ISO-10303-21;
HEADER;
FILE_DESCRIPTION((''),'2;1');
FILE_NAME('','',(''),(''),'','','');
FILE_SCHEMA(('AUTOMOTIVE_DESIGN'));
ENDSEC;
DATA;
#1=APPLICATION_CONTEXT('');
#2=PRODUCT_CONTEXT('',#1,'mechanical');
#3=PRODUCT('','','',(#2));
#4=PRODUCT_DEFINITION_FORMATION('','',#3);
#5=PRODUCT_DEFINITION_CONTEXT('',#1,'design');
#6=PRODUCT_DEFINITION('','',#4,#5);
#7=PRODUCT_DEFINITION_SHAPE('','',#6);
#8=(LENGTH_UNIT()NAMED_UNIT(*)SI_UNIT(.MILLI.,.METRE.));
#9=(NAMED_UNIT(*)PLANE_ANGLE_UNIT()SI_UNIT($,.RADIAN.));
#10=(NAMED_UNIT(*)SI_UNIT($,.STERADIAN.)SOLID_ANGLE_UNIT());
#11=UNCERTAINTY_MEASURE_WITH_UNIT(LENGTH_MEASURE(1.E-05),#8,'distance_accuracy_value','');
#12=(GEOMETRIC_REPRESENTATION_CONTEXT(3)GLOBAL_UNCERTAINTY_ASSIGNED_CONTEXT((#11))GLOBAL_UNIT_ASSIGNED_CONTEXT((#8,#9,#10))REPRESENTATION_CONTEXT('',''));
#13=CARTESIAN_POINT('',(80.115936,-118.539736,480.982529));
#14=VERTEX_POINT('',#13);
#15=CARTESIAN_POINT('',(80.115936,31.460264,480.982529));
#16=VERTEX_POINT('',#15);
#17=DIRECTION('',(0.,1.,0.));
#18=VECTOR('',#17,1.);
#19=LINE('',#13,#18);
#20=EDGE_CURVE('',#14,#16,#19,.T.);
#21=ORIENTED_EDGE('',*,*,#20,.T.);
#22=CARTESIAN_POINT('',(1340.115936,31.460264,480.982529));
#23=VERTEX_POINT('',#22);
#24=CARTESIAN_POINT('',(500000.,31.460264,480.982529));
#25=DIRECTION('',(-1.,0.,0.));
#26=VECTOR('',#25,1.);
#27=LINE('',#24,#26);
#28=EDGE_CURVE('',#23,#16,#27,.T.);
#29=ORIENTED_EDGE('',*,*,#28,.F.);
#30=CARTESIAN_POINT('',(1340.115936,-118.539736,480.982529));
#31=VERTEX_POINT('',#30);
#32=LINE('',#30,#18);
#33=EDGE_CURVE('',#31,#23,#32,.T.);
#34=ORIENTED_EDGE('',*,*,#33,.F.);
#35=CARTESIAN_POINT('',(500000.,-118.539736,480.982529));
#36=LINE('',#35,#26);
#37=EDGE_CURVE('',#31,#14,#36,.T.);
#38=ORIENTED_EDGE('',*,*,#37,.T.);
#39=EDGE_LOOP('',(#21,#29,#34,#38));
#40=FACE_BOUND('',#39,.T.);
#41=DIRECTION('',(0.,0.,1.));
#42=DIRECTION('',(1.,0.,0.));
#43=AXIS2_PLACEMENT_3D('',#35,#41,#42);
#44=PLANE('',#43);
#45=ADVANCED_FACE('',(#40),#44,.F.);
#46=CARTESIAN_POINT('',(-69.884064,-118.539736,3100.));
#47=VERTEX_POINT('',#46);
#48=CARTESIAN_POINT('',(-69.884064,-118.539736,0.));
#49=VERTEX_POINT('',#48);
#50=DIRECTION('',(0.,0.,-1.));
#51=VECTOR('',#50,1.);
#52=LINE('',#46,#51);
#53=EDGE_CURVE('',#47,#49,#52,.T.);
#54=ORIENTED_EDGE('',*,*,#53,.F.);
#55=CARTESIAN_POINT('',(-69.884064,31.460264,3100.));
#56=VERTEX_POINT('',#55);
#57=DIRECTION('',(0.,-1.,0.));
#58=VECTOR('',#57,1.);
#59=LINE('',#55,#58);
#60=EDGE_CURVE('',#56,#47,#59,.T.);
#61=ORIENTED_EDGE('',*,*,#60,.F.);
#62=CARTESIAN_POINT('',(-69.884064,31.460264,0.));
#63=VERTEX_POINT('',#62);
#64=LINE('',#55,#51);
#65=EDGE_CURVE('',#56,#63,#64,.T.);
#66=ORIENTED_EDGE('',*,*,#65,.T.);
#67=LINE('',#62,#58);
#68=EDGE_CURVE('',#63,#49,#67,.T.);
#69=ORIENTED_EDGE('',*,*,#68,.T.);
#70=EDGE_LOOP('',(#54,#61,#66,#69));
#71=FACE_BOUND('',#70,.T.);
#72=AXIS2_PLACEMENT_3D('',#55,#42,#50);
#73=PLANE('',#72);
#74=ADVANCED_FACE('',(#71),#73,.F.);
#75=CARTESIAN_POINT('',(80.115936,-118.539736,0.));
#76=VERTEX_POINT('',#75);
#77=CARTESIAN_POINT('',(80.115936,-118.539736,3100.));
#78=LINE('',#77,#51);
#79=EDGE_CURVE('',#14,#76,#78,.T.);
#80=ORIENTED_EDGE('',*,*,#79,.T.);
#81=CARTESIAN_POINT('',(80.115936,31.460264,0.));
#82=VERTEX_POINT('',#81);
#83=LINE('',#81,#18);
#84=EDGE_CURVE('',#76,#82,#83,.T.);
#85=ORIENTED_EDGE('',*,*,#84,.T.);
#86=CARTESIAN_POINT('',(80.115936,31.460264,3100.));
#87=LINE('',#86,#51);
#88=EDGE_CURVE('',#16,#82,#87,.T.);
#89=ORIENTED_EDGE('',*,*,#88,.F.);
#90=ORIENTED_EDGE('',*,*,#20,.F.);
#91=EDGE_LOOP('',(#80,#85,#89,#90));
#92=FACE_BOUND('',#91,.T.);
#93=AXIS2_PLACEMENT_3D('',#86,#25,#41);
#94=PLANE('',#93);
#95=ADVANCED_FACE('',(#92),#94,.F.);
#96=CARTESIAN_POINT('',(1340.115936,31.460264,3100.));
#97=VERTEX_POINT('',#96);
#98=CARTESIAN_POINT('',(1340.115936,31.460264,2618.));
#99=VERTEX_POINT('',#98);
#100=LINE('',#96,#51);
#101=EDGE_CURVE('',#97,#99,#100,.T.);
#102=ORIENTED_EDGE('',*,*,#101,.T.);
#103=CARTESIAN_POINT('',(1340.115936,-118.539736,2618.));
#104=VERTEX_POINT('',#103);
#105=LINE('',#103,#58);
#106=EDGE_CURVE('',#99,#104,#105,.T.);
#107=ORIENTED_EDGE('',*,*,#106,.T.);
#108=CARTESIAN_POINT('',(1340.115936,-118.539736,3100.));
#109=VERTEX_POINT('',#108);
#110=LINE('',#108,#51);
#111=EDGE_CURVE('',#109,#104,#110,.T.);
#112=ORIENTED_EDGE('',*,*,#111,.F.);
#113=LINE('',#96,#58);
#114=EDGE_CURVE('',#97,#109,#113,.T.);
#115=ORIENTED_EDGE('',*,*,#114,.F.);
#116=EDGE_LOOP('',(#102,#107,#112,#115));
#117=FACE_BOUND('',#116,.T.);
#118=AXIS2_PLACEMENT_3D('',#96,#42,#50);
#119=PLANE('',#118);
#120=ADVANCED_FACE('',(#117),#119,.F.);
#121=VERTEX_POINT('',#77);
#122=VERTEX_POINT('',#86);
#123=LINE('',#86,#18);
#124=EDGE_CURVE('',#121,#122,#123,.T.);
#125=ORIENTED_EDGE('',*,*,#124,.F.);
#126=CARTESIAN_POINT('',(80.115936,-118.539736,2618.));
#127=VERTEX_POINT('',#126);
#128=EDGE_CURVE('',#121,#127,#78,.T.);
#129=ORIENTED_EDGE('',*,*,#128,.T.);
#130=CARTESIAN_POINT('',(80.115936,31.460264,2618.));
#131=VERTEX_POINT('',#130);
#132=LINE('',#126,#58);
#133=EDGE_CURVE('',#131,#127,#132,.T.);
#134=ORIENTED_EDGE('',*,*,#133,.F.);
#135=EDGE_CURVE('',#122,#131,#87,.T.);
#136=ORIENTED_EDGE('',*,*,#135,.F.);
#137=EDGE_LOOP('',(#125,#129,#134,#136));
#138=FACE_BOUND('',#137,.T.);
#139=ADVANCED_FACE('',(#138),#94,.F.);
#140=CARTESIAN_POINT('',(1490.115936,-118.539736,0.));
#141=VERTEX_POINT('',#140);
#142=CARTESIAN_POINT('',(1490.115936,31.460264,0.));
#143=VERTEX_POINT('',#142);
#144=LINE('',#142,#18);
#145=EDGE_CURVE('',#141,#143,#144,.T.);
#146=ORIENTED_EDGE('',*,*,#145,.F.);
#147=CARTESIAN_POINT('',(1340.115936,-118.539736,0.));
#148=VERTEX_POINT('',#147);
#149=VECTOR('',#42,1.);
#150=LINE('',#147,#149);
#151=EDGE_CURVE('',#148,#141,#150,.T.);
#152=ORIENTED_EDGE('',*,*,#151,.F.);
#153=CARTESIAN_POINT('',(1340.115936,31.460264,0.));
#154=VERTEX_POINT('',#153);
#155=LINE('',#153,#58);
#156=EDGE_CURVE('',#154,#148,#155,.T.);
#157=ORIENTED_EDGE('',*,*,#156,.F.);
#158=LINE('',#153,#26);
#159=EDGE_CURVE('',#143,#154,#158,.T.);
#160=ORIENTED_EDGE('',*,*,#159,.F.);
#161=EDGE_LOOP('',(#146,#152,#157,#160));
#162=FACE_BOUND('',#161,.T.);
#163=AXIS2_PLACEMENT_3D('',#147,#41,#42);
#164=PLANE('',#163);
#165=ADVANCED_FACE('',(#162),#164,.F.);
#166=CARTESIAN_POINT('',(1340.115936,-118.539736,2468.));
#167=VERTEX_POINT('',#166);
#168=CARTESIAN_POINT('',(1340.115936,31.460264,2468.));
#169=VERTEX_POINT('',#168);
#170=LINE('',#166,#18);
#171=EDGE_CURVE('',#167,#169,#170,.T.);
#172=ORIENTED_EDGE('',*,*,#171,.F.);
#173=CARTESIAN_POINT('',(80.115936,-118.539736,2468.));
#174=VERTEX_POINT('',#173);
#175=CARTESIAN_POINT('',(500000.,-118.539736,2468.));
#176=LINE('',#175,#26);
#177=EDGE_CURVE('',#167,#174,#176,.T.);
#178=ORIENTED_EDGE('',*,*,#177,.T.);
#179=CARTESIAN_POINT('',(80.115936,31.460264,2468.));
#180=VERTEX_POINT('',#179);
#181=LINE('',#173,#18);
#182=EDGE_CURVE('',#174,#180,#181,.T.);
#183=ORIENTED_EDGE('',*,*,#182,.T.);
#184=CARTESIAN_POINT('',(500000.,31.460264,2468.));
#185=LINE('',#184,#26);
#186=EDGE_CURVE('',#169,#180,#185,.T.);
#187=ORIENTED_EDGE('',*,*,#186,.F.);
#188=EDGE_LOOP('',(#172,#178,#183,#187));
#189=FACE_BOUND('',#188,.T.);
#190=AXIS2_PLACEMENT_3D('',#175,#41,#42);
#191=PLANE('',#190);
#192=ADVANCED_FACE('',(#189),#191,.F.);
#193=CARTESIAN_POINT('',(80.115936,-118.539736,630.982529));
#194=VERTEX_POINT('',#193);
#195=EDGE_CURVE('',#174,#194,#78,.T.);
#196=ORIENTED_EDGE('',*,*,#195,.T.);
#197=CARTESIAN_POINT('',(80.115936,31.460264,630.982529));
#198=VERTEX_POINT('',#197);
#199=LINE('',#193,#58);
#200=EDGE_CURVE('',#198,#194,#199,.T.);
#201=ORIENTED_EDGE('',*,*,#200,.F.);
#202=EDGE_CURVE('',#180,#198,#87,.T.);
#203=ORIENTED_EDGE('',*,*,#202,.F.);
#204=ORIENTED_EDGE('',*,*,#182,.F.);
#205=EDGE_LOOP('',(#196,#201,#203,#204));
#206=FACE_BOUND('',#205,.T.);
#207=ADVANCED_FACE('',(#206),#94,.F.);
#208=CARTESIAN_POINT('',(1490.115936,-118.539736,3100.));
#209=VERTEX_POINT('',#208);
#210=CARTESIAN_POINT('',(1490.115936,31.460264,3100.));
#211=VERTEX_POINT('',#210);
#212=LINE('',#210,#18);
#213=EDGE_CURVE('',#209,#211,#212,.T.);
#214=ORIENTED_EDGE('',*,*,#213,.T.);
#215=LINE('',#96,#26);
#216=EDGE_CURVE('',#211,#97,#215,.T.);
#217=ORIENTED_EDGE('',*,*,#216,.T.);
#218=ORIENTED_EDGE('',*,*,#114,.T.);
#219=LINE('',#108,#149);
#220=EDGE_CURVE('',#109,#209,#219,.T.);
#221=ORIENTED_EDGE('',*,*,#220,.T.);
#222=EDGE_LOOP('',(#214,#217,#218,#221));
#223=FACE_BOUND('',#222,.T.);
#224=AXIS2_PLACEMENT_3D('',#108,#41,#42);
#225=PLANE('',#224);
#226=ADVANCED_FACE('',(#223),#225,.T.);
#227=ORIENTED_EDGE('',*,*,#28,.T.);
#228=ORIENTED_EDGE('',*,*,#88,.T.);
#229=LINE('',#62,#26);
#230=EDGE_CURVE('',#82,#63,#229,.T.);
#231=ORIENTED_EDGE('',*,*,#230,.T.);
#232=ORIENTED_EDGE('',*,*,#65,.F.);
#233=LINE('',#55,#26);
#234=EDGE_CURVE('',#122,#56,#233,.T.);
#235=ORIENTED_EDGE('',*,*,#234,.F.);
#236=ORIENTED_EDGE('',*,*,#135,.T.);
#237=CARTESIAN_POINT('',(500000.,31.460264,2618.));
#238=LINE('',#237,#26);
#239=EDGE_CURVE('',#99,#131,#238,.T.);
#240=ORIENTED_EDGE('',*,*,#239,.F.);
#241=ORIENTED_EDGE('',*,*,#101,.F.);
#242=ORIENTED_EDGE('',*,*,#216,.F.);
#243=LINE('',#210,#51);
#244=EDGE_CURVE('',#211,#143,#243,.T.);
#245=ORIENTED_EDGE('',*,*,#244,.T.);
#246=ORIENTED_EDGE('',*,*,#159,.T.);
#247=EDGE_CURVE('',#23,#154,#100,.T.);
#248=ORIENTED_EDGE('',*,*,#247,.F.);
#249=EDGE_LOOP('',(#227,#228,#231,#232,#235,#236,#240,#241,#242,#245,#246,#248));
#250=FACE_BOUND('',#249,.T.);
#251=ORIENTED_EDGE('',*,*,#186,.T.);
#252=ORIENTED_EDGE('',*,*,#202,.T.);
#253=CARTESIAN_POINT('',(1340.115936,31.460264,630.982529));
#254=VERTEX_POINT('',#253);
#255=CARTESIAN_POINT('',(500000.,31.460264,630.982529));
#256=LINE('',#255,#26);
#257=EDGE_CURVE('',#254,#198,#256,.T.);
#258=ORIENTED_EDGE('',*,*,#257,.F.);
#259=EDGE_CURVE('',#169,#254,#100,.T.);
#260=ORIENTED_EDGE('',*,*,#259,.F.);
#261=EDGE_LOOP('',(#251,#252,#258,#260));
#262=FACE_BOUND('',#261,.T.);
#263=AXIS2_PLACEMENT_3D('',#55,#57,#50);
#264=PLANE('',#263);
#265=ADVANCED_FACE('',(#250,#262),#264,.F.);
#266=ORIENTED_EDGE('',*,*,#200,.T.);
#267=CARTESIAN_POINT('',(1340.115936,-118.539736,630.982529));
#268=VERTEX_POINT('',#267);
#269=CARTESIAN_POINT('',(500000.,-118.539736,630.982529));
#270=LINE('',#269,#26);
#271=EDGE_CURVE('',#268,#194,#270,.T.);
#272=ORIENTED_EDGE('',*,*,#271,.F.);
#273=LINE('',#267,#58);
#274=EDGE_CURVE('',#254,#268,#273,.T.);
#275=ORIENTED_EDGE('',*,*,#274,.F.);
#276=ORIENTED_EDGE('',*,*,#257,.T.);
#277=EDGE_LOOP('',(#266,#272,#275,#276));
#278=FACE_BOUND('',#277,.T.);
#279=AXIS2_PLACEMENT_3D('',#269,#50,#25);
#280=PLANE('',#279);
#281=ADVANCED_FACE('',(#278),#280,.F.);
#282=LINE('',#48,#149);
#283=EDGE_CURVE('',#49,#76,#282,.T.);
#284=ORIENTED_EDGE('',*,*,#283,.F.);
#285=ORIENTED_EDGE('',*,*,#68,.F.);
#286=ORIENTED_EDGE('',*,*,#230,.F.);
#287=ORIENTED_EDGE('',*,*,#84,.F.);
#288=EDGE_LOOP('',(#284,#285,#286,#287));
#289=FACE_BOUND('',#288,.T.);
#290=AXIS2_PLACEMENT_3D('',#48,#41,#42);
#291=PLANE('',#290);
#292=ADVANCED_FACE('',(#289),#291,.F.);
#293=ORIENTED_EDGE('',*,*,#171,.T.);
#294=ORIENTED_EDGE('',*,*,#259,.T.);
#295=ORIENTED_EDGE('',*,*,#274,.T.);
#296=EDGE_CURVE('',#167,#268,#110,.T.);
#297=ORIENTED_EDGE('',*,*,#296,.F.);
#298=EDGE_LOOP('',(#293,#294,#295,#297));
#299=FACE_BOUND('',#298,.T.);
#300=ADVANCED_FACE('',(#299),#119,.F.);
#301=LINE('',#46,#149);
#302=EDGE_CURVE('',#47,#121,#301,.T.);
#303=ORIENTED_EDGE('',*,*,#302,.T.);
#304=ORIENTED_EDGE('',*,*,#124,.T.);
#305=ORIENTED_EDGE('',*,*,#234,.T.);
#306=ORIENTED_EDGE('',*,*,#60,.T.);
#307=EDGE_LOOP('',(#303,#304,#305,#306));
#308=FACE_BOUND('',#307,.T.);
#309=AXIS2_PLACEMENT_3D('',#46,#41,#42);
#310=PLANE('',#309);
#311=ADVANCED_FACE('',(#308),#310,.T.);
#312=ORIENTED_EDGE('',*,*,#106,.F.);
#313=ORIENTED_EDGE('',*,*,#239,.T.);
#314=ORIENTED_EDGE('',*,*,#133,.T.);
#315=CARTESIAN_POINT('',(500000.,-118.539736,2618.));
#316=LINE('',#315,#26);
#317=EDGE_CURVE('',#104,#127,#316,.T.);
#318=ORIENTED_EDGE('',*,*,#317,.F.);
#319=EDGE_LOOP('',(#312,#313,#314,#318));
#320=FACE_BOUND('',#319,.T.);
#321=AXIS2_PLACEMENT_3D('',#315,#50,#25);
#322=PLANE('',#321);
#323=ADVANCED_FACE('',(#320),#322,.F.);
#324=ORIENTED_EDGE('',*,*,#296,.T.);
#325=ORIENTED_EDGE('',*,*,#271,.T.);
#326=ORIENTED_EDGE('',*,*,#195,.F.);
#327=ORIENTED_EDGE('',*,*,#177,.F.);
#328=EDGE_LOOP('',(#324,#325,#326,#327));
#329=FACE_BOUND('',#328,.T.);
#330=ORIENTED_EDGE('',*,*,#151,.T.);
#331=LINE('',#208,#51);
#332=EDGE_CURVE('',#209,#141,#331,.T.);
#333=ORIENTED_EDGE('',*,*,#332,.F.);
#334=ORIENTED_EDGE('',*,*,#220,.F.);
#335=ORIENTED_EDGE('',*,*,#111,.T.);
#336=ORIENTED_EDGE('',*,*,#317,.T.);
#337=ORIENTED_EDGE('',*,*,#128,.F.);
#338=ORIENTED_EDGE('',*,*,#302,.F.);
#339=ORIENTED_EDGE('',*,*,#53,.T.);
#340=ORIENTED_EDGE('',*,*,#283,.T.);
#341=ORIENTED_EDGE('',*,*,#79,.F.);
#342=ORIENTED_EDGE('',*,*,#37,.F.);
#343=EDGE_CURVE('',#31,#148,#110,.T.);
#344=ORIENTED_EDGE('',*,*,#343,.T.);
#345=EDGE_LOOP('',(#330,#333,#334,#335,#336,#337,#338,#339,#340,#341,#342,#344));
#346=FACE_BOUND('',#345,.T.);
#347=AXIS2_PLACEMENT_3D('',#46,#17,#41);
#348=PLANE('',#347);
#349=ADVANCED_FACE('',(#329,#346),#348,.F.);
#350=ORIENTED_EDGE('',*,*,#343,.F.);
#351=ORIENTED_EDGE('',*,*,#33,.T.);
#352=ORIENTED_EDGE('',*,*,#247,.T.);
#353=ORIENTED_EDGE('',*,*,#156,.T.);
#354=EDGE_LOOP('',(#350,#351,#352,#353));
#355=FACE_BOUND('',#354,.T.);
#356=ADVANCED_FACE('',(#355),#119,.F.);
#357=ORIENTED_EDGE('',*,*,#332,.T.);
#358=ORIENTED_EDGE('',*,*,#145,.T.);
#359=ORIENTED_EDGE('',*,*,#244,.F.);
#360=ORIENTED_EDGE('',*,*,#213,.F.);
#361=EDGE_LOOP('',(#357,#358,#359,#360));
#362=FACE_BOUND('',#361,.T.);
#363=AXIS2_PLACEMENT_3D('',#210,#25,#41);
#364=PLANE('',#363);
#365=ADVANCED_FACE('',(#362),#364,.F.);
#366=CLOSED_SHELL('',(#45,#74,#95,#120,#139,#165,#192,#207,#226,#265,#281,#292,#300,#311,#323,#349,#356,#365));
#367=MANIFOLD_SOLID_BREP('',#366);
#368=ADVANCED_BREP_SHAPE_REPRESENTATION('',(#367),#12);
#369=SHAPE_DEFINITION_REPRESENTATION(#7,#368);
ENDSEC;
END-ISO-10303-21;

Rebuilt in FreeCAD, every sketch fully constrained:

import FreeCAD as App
import Part
import Sketcher
from FreeCAD import Vector
Q = App.Units.Quantity

doc = App.newDocument("Part")
body = doc.addObject("PartDesign::Body", "Body")

# Sketch on XY plane
sketch1 = doc.addObject("Sketcher::SketchObject", "Sketch")
body.addObject(sketch1)
sketch1.AttachmentSupport = (doc.XY_Plane, [""])
sketch1.MapMode = "FlatFace"
sketch1.addGeometry(Part.LineSegment(Vector(1340.115936, 31.460264, 0), Vector(1340.115936, -118.539736, 0)), False)
sketch1.addGeometry(Part.LineSegment(Vector(1340.115936, -118.539736, 0), Vector(1490.115936, -118.539736, 0)), False)
sketch1.addGeometry(Part.LineSegment(Vector(1490.115936, -118.539736, 0), Vector(1490.115936, 31.460264, 0)), False)
sketch1.addGeometry(Part.LineSegment(Vector(1490.115936, 31.460264, 0), Vector(1340.115936, 31.460264, 0)), False)
sketch1.addConstraint(Sketcher.Constraint("Coincident", 0, 2, 1, 1))
sketch1.addConstraint(Sketcher.Constraint("Coincident", 1, 2, 2, 1))
sketch1.addConstraint(Sketcher.Constraint("Coincident", 2, 2, 3, 1))
sketch1.addConstraint(Sketcher.Constraint("Coincident", 3, 2, 0, 1))
sketch1.addConstraint(Sketcher.Constraint("Vertical", 0))
sketch1.addConstraint(Sketcher.Constraint("Horizontal", 1))
sketch1.addConstraint(Sketcher.Constraint("Vertical", 2))
sketch1.addConstraint(Sketcher.Constraint("Horizontal", 3))
sketch1.addConstraint(Sketcher.Constraint("Equal", 3, 0))
sketch1.addConstraint(Sketcher.Constraint("DistanceX", 1, 1, 1, 2, Q("150 mm")))
sketch1.addConstraint(Sketcher.Constraint("DistanceX", -1, 1, 0, 2, Q("1340.115936 mm")))
sketch1.addConstraint(Sketcher.Constraint("DistanceY", 0, 2, -1, 1, Q("118.539736 mm")))
pad1 = doc.addObject("PartDesign::Pad", "Pad")
body.addObject(pad1)
pad1.Profile = sketch1
pad1.Length = 3100
body2 = doc.addObject("PartDesign::Body", "Body001")

# Sketch on XY plane
sketch2 = doc.addObject("Sketcher::SketchObject", "Sketch001")
body2.addObject(sketch2)
sketch2.AttachmentSupport = (doc.getObject("XY_Plane001"), [""])
sketch2.MapMode = "FlatFace"
sketch2.addGeometry(Part.LineSegment(Vector(-69.884064, 31.460264, 0), Vector(-69.884064, -118.539736, 0)), False)
sketch2.addGeometry(Part.LineSegment(Vector(-69.884064, -118.539736, 0), Vector(80.115936, -118.539736, 0)), False)
sketch2.addGeometry(Part.LineSegment(Vector(80.115936, -118.539736, 0), Vector(80.115936, 31.460264, 0)), False)
sketch2.addGeometry(Part.LineSegment(Vector(80.115936, 31.460264, 0), Vector(-69.884064, 31.460264, 0)), False)
sketch2.addConstraint(Sketcher.Constraint("Coincident", 0, 2, 1, 1))
sketch2.addConstraint(Sketcher.Constraint("Coincident", 1, 2, 2, 1))
sketch2.addConstraint(Sketcher.Constraint("Coincident", 2, 2, 3, 1))
sketch2.addConstraint(Sketcher.Constraint("Coincident", 3, 2, 0, 1))
sketch2.addConstraint(Sketcher.Constraint("Vertical", 0))
sketch2.addConstraint(Sketcher.Constraint("Horizontal", 1))
sketch2.addConstraint(Sketcher.Constraint("Vertical", 2))
sketch2.addConstraint(Sketcher.Constraint("Horizontal", 3))
sketch2.addConstraint(Sketcher.Constraint("Equal", 3, 0))
sketch2.addConstraint(Sketcher.Constraint("DistanceX", 1, 1, 1, 2, Q("150 mm")))
sketch2.addConstraint(Sketcher.Constraint("DistanceX", 0, 2, -1, 1, Q("69.884064 mm")))
sketch2.addConstraint(Sketcher.Constraint("DistanceY", 0, 2, -1, 1, Q("118.539736 mm")))
pad2 = doc.addObject("PartDesign::Pad", "Pad001")
body2.addObject(pad2)
pad2.Profile = sketch2
pad2.Length = 3100
body.AllowCompound = True
doc.recompute()

boolean = doc.addObject("PartDesign::Boolean", "Boolean")
body.addObject(boolean)
boolean.Type = "Fuse"
boolean.addObjects([body2])

# Sketch on YZ plane
sketch3 = doc.addObject("Sketcher::SketchObject", "Sketch002")
body.addObject(sketch3)
sketch3.AttachmentSupport = (doc.YZ_Plane, [""])
sketch3.MapMode = "FlatFace"
sketch3.AttachmentOffset = App.Placement(Vector(0, 0, 80.115936), App.Rotation())
sketch3.addGeometry(Part.LineSegment(Vector(31.460264, 2618, 0), Vector(-118.539736, 2618, 0)), False)
sketch3.addGeometry(Part.LineSegment(Vector(-118.539736, 2618, 0), Vector(-118.539736, 2468, 0)), False)
sketch3.addGeometry(Part.LineSegment(Vector(-118.539736, 2468, 0), Vector(31.460264, 2468, 0)), False)
sketch3.addGeometry(Part.LineSegment(Vector(31.460264, 2468, 0), Vector(31.460264, 2618, 0)), False)
sketch3.addConstraint(Sketcher.Constraint("Coincident", 0, 2, 1, 1))
sketch3.addConstraint(Sketcher.Constraint("Coincident", 1, 2, 2, 1))
sketch3.addConstraint(Sketcher.Constraint("Coincident", 2, 2, 3, 1))
sketch3.addConstraint(Sketcher.Constraint("Coincident", 3, 2, 0, 1))
sketch3.addConstraint(Sketcher.Constraint("Horizontal", 0))
sketch3.addConstraint(Sketcher.Constraint("Vertical", 1))
sketch3.addConstraint(Sketcher.Constraint("Horizontal", 2))
sketch3.addConstraint(Sketcher.Constraint("Vertical", 3))
sketch3.addConstraint(Sketcher.Constraint("Equal", 2, 1))
sketch3.addConstraint(Sketcher.Constraint("DistanceX", 0, 2, 0, 1, Q("150 mm")))
sketch3.addConstraint(Sketcher.Constraint("DistanceY", -1, 1, 0, 2, Q("2618 mm")))
sketch3.addConstraint(Sketcher.Constraint("DistanceX", 0, 2, -1, 1, Q("118.539736 mm")))
pad3 = doc.addObject("PartDesign::Pad", "Pad002")
body.addObject(pad3)
pad3.Profile = sketch3
pad3.Type = "UpToFirst"

# Sketch on YZ plane
sketch4 = doc.addObject("Sketcher::SketchObject", "Sketch003")
body.addObject(sketch4)
sketch4.AttachmentSupport = (doc.YZ_Plane, [""])
sketch4.MapMode = "FlatFace"
sketch4.AttachmentOffset = App.Placement(Vector(0, 0, 80.115936), App.Rotation())
sketch4.addGeometry(Part.LineSegment(Vector(31.460264, 630.982529, 0), Vector(-118.539736, 630.982529, 0)), False)
sketch4.addGeometry(Part.LineSegment(Vector(-118.539736, 630.982529, 0), Vector(-118.539736, 480.982529, 0)), False)
sketch4.addGeometry(Part.LineSegment(Vector(-118.539736, 480.982529, 0), Vector(31.460264, 480.982529, 0)), False)
sketch4.addGeometry(Part.LineSegment(Vector(31.460264, 480.982529, 0), Vector(31.460264, 630.982529, 0)), False)
sketch4.addConstraint(Sketcher.Constraint("Coincident", 0, 2, 1, 1))
sketch4.addConstraint(Sketcher.Constraint("Coincident", 1, 2, 2, 1))
sketch4.addConstraint(Sketcher.Constraint("Coincident", 2, 2, 3, 1))
sketch4.addConstraint(Sketcher.Constraint("Coincident", 3, 2, 0, 1))
sketch4.addConstraint(Sketcher.Constraint("Horizontal", 0))
sketch4.addConstraint(Sketcher.Constraint("Vertical", 1))
sketch4.addConstraint(Sketcher.Constraint("Horizontal", 2))
sketch4.addConstraint(Sketcher.Constraint("Vertical", 3))
sketch4.addConstraint(Sketcher.Constraint("Equal", 2, 1))
sketch4.addConstraint(Sketcher.Constraint("DistanceX", 0, 2, 0, 1, Q("150 mm")))
sketch4.addConstraint(Sketcher.Constraint("DistanceY", -1, 1, 0, 2, Q("630.982529 mm")))
sketch4.addConstraint(Sketcher.Constraint("DistanceX", 0, 2, -1, 1, Q("118.539736 mm")))
pad4 = doc.addObject("PartDesign::Pad", "Pad003")
body.addObject(pad4)
pad4.Profile = sketch4
pad4.Type = "UpToFirst"

doc.recompute()
